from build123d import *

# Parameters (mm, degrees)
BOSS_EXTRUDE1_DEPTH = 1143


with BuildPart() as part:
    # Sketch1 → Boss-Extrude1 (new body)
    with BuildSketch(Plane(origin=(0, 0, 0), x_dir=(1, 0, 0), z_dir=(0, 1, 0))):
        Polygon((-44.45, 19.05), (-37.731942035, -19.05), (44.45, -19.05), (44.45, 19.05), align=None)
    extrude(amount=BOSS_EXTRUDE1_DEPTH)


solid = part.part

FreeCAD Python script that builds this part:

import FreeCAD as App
import Part
import Sketcher
Q = App.Units.Quantity

doc = App.newDocument("Part")
body = doc.addObject("PartDesign::Body", "Body")

sketch1 = body.newObject("Sketcher::SketchObject", "Sketch")
sketch1.AttachmentSupport = (doc.getObject("XZ_Plane"), [""])
sketch1.MapMode = "FlatFace"
sketch1.addGeometry(Part.LineSegment(App.Vector(-44.45, -19.05, 0), App.Vector(-37.731942, 19.05, 0)), False)
sketch1.addGeometry(Part.LineSegment(App.Vector(-37.731942, 19.05, 0), App.Vector(44.45, 19.05, 0)), False)
sketch1.addGeometry(Part.LineSegment(App.Vector(44.45, 19.05, 0), App.Vector(44.45, -19.05, 0)), False)
sketch1.addGeometry(Part.LineSegment(App.Vector(44.45, -19.05, 0), App.Vector(-44.45, -19.05, 0)), False)
sketch1.addConstraint(Sketcher.Constraint("Coincident", 0, 2, 1, 1))
sketch1.addConstraint(Sketcher.Constraint("Coincident", 1, 2, 2, 1))
sketch1.addConstraint(Sketcher.Constraint("Coincident", 2, 2, 3, 1))
sketch1.addConstraint(Sketcher.Constraint("Coincident", 3, 2, 0, 1))
sketch1.addConstraint(Sketcher.Constraint("Horizontal", 1))
sketch1.addConstraint(Sketcher.Constraint("Vertical", 2))
sketch1.addConstraint(Sketcher.Constraint("Horizontal", 3))
sketch1.addConstraint(Sketcher.Constraint("Symmetric", 1, 2, 3, 2, -1, 1))
sketch1.addConstraint(Sketcher.Constraint("DistanceX", 3, 2, 3, 1, Q("3.5 in")))
sketch1.addConstraint(Sketcher.Constraint("DistanceY", 2, 2, 2, 1, Q("1.5 in")))
sketch1.addConstraint(Sketcher.Constraint("Angle", 0, Q("80 deg")))
pad1 = body.newObject("PartDesign::Pad", "Pad")
pad1.Profile = sketch1
pad1.Length = Q("45 in")
pad1.Reversed = True

doc.recompute()
